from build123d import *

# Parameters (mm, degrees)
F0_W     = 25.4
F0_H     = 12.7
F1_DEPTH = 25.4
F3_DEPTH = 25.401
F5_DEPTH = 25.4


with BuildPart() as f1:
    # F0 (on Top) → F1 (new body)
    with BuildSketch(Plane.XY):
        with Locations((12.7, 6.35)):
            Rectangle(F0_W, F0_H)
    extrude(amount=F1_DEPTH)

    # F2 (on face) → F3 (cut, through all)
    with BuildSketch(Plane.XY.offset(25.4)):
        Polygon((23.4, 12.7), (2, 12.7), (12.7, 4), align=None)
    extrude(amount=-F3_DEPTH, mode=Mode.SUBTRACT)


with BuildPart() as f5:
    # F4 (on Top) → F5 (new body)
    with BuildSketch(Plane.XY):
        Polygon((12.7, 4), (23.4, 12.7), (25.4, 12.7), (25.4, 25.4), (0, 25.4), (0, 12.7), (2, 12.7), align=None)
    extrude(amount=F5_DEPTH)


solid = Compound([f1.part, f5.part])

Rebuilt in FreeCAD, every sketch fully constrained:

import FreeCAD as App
import Part
import Sketcher


def add_polygon(sketch, points):
    """Adds a closed chain of lines whose ends are joined by coincident constraints."""
    first, n = sketch.GeometryCount, len(points)
    for a, b in zip(points, points[1:] + points[:1]):
        sketch.addGeometry(Part.LineSegment(App.Vector(*a, 0), App.Vector(*b, 0)), False)
    for i in range(n):
        sketch.addConstraint(Sketcher.Constraint("Coincident", first + i, 2, first + (i + 1) % n, 1))

doc = App.newDocument("Part")
body = doc.addObject("PartDesign::Body", "Body")

sketch1 = body.newObject("Sketcher::SketchObject", "Sketch")
sketch1.AttachmentSupport = (doc.getObject("XY_Plane"), [""])
sketch1.MapMode = "FlatFace"
add_polygon(sketch1, [(0, 13), (0, 0), (25, 0), (25, 13)])
sketch1.addConstraint([
    Sketcher.Constraint("Vertical", 0),
    Sketcher.Constraint("Horizontal", 1),
    Sketcher.Constraint("Vertical", 2),
    Sketcher.Constraint("Horizontal", 3),
    Sketcher.Constraint("Coincident", 0, 2, -1, 1),
    Sketcher.Constraint("DistanceX", 1, 1, 1, 2, 25.4),
    Sketcher.Constraint("DistanceY", 0, 2, 0, 1, 12.7),
])
pad1 = body.newObject("PartDesign::Pad", "Pad")
pad1.Profile = sketch1
pad1.Length = 25.4

sketch2 = body.newObject("Sketcher::SketchObject", "Sketch001")
sketch2.AttachmentSupport = (doc.getObject("XY_Plane"), [""])
sketch2.MapMode = "FlatFace"
sketch2.AttachmentOffset = App.Placement(App.Vector(0, 0, 25.4), App.Rotation())
add_polygon(sketch2, [(23, 13), (2, 13), (13, 4)])
sketch2.addConstraint([
    Sketcher.Constraint("Horizontal", 0),
    Sketcher.Constraint("Equal", 1, 2),
    Sketcher.Constraint("DistanceX", 0, 2, 0, 1, 21.4),
    Sketcher.Constraint("DistanceX", -1, 1, 0, 2, 2.0),
    Sketcher.Constraint("DistanceY", -1, 1, 1, 2, 4.0),
    Sketcher.Constraint("DistanceY", -1, 1, 0, 2, 12.7),
])
pocket1 = body.newObject("PartDesign::Pocket", "Pocket")
pocket1.Profile = sketch2
pocket1.Type = "ThroughAll"
body2 = doc.addObject("PartDesign::Body", "Body001")

sketch3 = body2.newObject("Sketcher::SketchObject", "Sketch002")
sketch3.AttachmentSupport = (doc.getObject("XY_Plane001"), [""])
sketch3.MapMode = "FlatFace"
add_polygon(sketch3, [(12.7, 4), (23.4, 12.7), (25.4, 12.7), (25.4, 25.4), (0, 25.4), (0, 12.7), (2, 12.7)])
sketch3.addConstraint([
    Sketcher.Constraint("Horizontal", 1),
    Sketcher.Constraint("Vertical", 2),
    Sketcher.Constraint("Horizontal", 3),
    Sketcher.Constraint("Vertical", 4),
    Sketcher.Constraint("Horizontal", 5),
    Sketcher.Constraint("PointOnObject", 3, 2, -2),
    Sketcher.Constraint("Horizontal", 1, 2, 4, 2),
    Sketcher.Constraint("Equal", 1, 5),
    Sketcher.Constraint("Equal", 0, 6),
    Sketcher.Constraint("DistanceX", 1, 1, 1, 2, 2.0),
    Sketcher.Constraint("DistanceX", 3, 2, 3, 1, 25.4),
    Sketcher.Constraint("DistanceY", 2, 1, 2, 2, 12.7),
    Sketcher.Constraint("DistanceY", -1, 1, 6, 2, 4.0),
    Sketcher.Constraint("DistanceY", -1, 1, 0, 2, 12.7),
])
pad2 = body2.newObject("PartDesign::Pad", "Pad001")
pad2.Profile = sketch3
pad2.Length = 25.4

doc.recompute()
